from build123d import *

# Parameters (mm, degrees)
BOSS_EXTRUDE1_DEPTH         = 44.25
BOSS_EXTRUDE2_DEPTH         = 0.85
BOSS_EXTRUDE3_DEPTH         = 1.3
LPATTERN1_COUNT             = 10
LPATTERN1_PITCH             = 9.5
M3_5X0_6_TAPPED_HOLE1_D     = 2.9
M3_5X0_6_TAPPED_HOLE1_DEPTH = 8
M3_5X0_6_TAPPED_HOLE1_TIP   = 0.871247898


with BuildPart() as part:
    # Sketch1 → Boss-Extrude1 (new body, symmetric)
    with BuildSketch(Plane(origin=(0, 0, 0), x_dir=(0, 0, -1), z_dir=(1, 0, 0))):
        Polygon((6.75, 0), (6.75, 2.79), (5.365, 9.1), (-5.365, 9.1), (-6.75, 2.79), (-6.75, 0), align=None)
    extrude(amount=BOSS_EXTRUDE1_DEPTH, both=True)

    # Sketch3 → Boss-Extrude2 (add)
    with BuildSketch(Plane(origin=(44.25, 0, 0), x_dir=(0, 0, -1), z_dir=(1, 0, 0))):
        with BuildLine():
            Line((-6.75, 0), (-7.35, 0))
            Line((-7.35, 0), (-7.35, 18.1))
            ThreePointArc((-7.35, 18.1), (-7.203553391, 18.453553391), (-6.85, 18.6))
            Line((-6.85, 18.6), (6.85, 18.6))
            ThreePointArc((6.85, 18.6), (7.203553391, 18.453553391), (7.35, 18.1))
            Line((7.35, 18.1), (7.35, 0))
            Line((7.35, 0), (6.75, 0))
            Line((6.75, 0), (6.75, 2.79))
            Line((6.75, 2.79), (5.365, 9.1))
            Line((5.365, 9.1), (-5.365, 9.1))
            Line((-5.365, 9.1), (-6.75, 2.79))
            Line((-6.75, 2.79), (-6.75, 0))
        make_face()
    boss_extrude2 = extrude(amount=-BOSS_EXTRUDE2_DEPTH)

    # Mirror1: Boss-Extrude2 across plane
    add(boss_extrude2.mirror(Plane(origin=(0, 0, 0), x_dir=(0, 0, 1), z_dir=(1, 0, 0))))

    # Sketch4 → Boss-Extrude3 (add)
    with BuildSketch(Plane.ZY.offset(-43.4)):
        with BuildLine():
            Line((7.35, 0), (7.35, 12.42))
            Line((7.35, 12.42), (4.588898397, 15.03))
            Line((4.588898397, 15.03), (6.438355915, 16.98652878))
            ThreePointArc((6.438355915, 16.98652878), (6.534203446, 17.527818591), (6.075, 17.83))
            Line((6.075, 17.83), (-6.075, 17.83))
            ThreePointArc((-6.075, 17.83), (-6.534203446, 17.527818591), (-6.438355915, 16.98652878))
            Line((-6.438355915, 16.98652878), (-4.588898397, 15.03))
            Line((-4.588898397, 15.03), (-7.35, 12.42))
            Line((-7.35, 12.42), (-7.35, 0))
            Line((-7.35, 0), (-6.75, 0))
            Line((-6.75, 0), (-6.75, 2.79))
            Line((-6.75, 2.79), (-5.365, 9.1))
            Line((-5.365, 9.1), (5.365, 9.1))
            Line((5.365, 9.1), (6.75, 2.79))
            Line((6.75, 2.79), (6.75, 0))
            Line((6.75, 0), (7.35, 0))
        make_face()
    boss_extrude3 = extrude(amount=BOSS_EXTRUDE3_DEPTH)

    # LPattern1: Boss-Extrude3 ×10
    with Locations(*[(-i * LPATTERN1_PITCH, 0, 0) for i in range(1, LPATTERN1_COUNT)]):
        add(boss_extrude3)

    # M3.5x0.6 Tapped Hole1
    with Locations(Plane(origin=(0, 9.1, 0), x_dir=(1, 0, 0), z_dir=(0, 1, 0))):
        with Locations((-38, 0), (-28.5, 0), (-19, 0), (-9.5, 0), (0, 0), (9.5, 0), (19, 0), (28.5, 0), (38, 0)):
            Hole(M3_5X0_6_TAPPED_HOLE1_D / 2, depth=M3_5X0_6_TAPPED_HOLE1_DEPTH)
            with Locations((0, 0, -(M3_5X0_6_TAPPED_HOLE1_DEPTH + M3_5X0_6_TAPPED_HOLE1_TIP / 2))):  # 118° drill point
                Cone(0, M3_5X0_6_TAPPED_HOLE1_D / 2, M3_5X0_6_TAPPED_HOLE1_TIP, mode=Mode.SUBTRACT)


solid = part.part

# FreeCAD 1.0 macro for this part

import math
import FreeCAD as App
import Part
import Sketcher

V = App.Vector
Q = App.Units.Quantity

doc = App.newDocument("Part")
params = doc.addObject("Spreadsheet::Sheet", "Params")
for row, (alias, value) in enumerate([
    ("sketch1_height", "13.5 mm"),
    ("sketch1_width", "2.79 mm"),
    ("sketch1_height2", "10.73 mm"),
    ("pad1_length", "88.5 mm"),
    ("sketch2_radius", "0.5 mm"),
    ("sketch2_width", "18.1 mm"),
    ("sketch2_height", "0.6 mm"),
    ("sketch2_height2", "13.7 mm"),
    ("sketch2_width2", "2.79 mm"),
    ("pad2_length", "0.85 mm"),
    ("sketch3_radius", "0.5 mm"),
    ("sketch3_height", "0.6 mm"),
    ("sketch3_width", "12.42 mm"),
    ("sketch3_width2", "2.79 mm"),
    ("sketch3_height2", "12.15 mm"),
    ("pad3_length", "1.3 mm"),
    ("linearpattern_pitch", "9.5 mm"),
    ("sketch4_diameter", "2.9 mm"),
    ("hole_diameter", "2.9 mm"),
    ("hole_depth", "8 mm"),
], start=1):
    params.set(f"A{row}", alias)
    params.set(f"B{row}", "=" + value)
    params.setAlias(f"B{row}", alias)

body = doc.addObject("PartDesign::Body", "Body")

# Sketch on YZ plane
sketch1 = body.newObject("Sketcher::SketchObject", "Sketch")
sketch1.AttachmentSupport = (doc.getObject("YZ_Plane"), [""])
sketch1.MapMode = "FlatFace"
sketch1.addGeometry([
    Part.LineSegment(V(0, -6.8, 0), V(2.8, -6.8, 0)),  # 0
    Part.LineSegment(V(2.8, -6.8, 0), V(9.1, -5.4, 0)),  # 1
    Part.LineSegment(V(9.1, -5.4, 0), V(9.1, 5.4, 0)),  # 2
    Part.LineSegment(V(9.1, 5.4, 0), V(2.8, 6.8, 0)),  # 3
    Part.LineSegment(V(2.8, 6.8, 0), V(0, 6.8, 0)),  # 4
    Part.LineSegment(V(0, 6.8, 0), V(0, -6.8, 0)),  # 5
], False)
sketch1.addConstraint([
    Sketcher.Constraint("Coincident", 0, 2, 1, 1),
    Sketcher.Constraint("Coincident", 1, 2, 2, 1),
    Sketcher.Constraint("Coincident", 2, 2, 3, 1),
    Sketcher.Constraint("Coincident", 3, 2, 4, 1),
    Sketcher.Constraint("Coincident", 4, 2, 5, 1),
    Sketcher.Constraint("Coincident", 5, 2, 0, 1),
    Sketcher.Constraint("Horizontal", 0),
    Sketcher.Constraint("Vertical", 2),
    Sketcher.Constraint("Horizontal", 4),
    Sketcher.Constraint("Vertical", 5),
    Sketcher.Constraint("Symmetric", 4, 2, 5, 2, -1, 1),
    Sketcher.Constraint("Vertical", 0, 2, 3, 2),
    Sketcher.Constraint("Equal", 1, 3),
    Sketcher.Constraint("DistanceY", 5, 2, 5, 1, Q("13.5 mm")),
    Sketcher.Constraint("DistanceX", 0, 1, 0, 2, Q("2.79 mm")),
    Sketcher.Constraint("DistanceY", 2, 1, 2, 2, Q("10.73 mm")),
    Sketcher.Constraint("DistanceX", -1, 1, 1, 2, Q("9.1 mm")),
])
sketch1.setExpression("Constraints[13]", "Params.sketch1_height")
sketch1.setExpression("Constraints[14]", "Params.sketch1_width")
sketch1.setExpression("Constraints[15]", "Params.sketch1_height2")
pad1 = body.newObject("PartDesign::Pad", "Pad")
pad1.Profile = sketch1
pad1.setExpression("Length", "Params.pad1_length")
pad1.Midplane = True

# Sketch on YZ plane
sketch2 = body.newObject("Sketcher::SketchObject", "Sketch001")
sketch2.AttachmentSupport = (doc.getObject("YZ_Plane"), [""])
sketch2.MapMode = "FlatFace"
sketch2.AttachmentOffset = App.Placement(V(0, 0, 44.25), App.Rotation())
sketch2.addGeometry([
    Part.LineSegment(V(0, 7.35, 0), V(0, 6.75, 0)),  # 0
    Part.LineSegment(V(0, 6.75, 0), V(2.79, 6.75, 0)),  # 1
    Part.LineSegment(V(2.79, 6.75, 0), V(9.1, 5.37, 0)),  # 2
    Part.LineSegment(V(9.1, 5.37, 0), V(9.1, -5.37, 0)),  # 3
    Part.LineSegment(V(9.1, -5.37, 0), V(2.79, -6.75, 0)),  # 4
    Part.LineSegment(V(2.79, -6.75, 0), V(0, -6.75, 0)),  # 5
    Part.LineSegment(V(0, -6.75, 0), V(0, -7.35, 0)),  # 6
    Part.LineSegment(V(0, -7.35, 0), V(18.1, -7.35, 0)),  # 7
    Part.ArcOfCircle(Part.Circle(V(18.1, -6.85, 0), V(0, 0, 1), 0.5), math.radians(-90), math.radians(0)),  # 8
    Part.LineSegment(V(18.6, -6.85, 0), V(18.6, 6.85, 0)),  # 9
    Part.ArcOfCircle(Part.Circle(V(18.1, 6.85, 0), V(0, 0, 1), 0.5), math.radians(0), math.radians(90)),  # 10
    Part.LineSegment(V(18.1, 7.35, 0), V(0, 7.35, 0)),  # 11
], False)
sketch2.addConstraint([
    Sketcher.Constraint("Coincident", 0, 2, 1, 1),
    Sketcher.Constraint("Coincident", 1, 2, 2, 1),
    Sketcher.Constraint("Coincident", 2, 2, 3, 1),
    Sketcher.Constraint("Coincident", 3, 2, 4, 1),
    Sketcher.Constraint("Coincident", 4, 2, 5, 1),
    Sketcher.Constraint("Coincident", 5, 2, 6, 1),
    Sketcher.Constraint("Coincident", 6, 2, 7, 1),
    Sketcher.Constraint("Tangent", 7, 2, 8, 1),
    Sketcher.Constraint("Tangent", 8, 2, 9, 1),
    Sketcher.Constraint("Tangent", 9, 2, 10, 1),
    Sketcher.Constraint("Tangent", 10, 2, 11, 1),
    Sketcher.Constraint("Coincident", 11, 2, 0, 1),
    Sketcher.Constraint("Vertical", 0),
    Sketcher.Constraint("Horizontal", 1),
    Sketcher.Constraint("Vertical", 3),
    Sketcher.Constraint("Horizontal", 5),
    Sketcher.Constraint("Vertical", 6),
    Sketcher.Constraint("Horizontal", 7),
    Sketcher.Constraint("Vertical", 9),
    Sketcher.Constraint("Horizontal", 11),
    Sketcher.Constraint("Equal", 8, 10),
    Sketcher.Constraint("Symmetric", 0, 2, 5, 2, -1, 1),
    Sketcher.Constraint("Symmetric", 6, 2, 11, 2, -1),
    Sketcher.Constraint("Vertical", 1, 2, 4, 2),
    Sketcher.Constraint("Equal", 2, 4),
    Sketcher.Constraint("Radius", 8, Q("0.5 mm")),
    Sketcher.Constraint("DistanceX", 7, 1, 7, 2, Q("18.1 mm")),
    Sketcher.Constraint("DistanceY", 0, 2, 0, 1, Q("0.6 mm")),
    Sketcher.Constraint("DistanceY", 9, 1, 9, 2, Q("13.7 mm")),
    Sketcher.Constraint("DistanceX", 2, 2, 10, 3, Q("9 mm")),
    Sketcher.Constraint("DistanceX", 1, 1, 1, 2, Q("2.79 mm")),
    Sketcher.Constraint("DistanceY", 3, 2, 3, 1, Q("10.73 mm")),
])
sketch2.setExpression("Constraints[25]", "Params.sketch2_radius")
sketch2.setExpression("Constraints[26]", "Params.sketch2_width")
sketch2.setExpression("Constraints[27]", "Params.sketch2_height")
sketch2.setExpression("Constraints[28]", "Params.sketch2_height2")
sketch2.setExpression("Constraints[30]", "Params.sketch2_width2")
pad2 = body.newObject("PartDesign::Pad", "Pad001")
pad2.Profile = sketch2
pad2.setExpression("Length", "Params.pad2_length")
pad2.Reversed = True
doc.recompute()

mirrored = body.newObject("PartDesign::Mirrored", "Mirrored")
mirrored.Originals = [pad2]
mirrored.MirrorPlane = (doc.getObject("YZ_Plane"), [""])
body.Tip = mirrored

# Sketch on YZ plane
sketch3 = body.newObject("Sketcher::SketchObject", "Sketch002")
sketch3.AttachmentSupport = (doc.getObject("YZ_Plane"), [""])
sketch3.MapMode = "FlatFace"
sketch3.AttachmentOffset = App.Placement(V(0, 0, 43.4), App.Rotation())
sketch3.addGeometry([
    Part.LineSegment(V(0, 7.3, 0), V(12.4, 7.3, 0)),  # 0
    Part.LineSegment(V(12.4, 7.3, 0), V(15, 4.6, 0)),  # 1
    Part.LineSegment(V(15, 4.6, 0), V(17, 6.4, 0)),  # 2
    Part.ArcOfCircle(Part.Circle(V(17.3, 6.1, 0), V(0, 0, 1), 0.5), math.radians(0), math.radians(133)),  # 3
    Part.LineSegment(V(17.8, 6.1, 0), V(17.8, -6.1, 0)),  # 4
    Part.ArcOfCircle(Part.Circle(V(17.3, -6.1, 0), V(0, 0, 1), 0.5), math.radians(-133), math.radians(0)),  # 5
    Part.LineSegment(V(17, -6.4, 0), V(15, -4.6, 0)),  # 6
    Part.LineSegment(V(15, -4.6, 0), V(12.4, -7.3, 0)),  # 7
    Part.LineSegment(V(12.4, -7.3, 0), V(0, -7.3, 0)),  # 8
    Part.LineSegment(V(0, -7.3, 0), V(0, -6.8, 0)),  # 9
    Part.LineSegment(V(0, -6.8, 0), V(2.8, -6.8, 0)),  # 10
    Part.LineSegment(V(2.8, -6.8, 0), V(9.1, -5.4, 0)),  # 11
    Part.LineSegment(V(9.1, -5.4, 0), V(9.1, 5.4, 0)),  # 12
    Part.LineSegment(V(9.1, 5.4, 0), V(2.8, 6.8, 0)),  # 13
    Part.LineSegment(V(2.8, 6.8, 0), V(0, 6.8, 0)),  # 14
    Part.LineSegment(V(0, 6.8, 0), V(0, 7.3, 0)),  # 15
], False)
sketch3.addConstraint([
    Sketcher.Constraint("Coincident", 0, 2, 1, 1),
    Sketcher.Constraint("Coincident", 1, 2, 2, 1),
    Sketcher.Constraint("Tangent", 2, 2, 3, 2),
    Sketcher.Constraint("Tangent", 3, 1, 4, 1),
    Sketcher.Constraint("Tangent", 4, 2, 5, 2),
    Sketcher.Constraint("Tangent", 5, 1, 6, 1),
    Sketcher.Constraint("Coincident", 6, 2, 7, 1),
    Sketcher.Constraint("Coincident", 7, 2, 8, 1),
    Sketcher.Constraint("Coincident", 8, 2, 9, 1),
    Sketcher.Constraint("Coincident", 9, 2, 10, 1),
    Sketcher.Constraint("Coincident", 10, 2, 11, 1),
    Sketcher.Constraint("Coincident", 11, 2, 12, 1),
    Sketcher.Constraint("Coincident", 12, 2, 13, 1),
    Sketcher.Constraint("Coincident", 13, 2, 14, 1),
    Sketcher.Constraint("Coincident", 14, 2, 15, 1),
    Sketcher.Constraint("Coincident", 15, 2, 0, 1),
    Sketcher.Constraint("Horizontal", 0),
    Sketcher.Constraint("Vertical", 4),
    Sketcher.Constraint("Horizontal", 8),
    Sketcher.Constraint("Vertical", 9),
    Sketcher.Constraint("Horizontal", 10),
    Sketcher.Constraint("Vertical", 12),
    Sketcher.Constraint("Horizontal", 14),
    Sketcher.Constraint("Vertical", 15),
    Sketcher.Constraint("Equal", 3, 5),
    Sketcher.Constraint("Symmetric", 9, 2, 14, 2, -1, 1),
    Sketcher.Constraint("Symmetric", 2, 2, 5, 1, -1),
    Sketcher.Constraint("Symmetric", 0, 2, 7, 2, -1),
    Sketcher.Constraint("PointOnObject", 8, 2, -2),
    Sketcher.Constraint("Perpendicular", 1, 2),
    Sketcher.Constraint("Perpendicular", 6, 7),
    Sketcher.Constraint("Vertical", 10, 2, 13, 2),
    Sketcher.Constraint("Equal", 11, 13),
    Sketcher.Constraint("Radius", 3, Q("0.5 mm")),
    Sketcher.Constraint("DistanceY", 9, 1, 9, 2, Q("0.6 mm")),
    Sketcher.Constraint("DistanceX", 0, 1, 0, 2, Q("12.42 mm")),
    Sketcher.Constraint("DistanceX", 10, 1, 10, 2, Q("2.79 mm")),
    Sketcher.Constraint("DistanceY", 4, 2, 4, 1, Q("12.15 mm")),
    Sketcher.Constraint("DistanceY", 12, 1, 12, 2, Q("10.73 mm")),
    Sketcher.Constraint("DistanceX", -1, 1, 11, 2, Q("9.1 mm")),
    Sketcher.Constraint("DistanceX", 1, 2, 3, 3, Q("2.3 mm")),
    Sketcher.Constraint("DistanceY", 10, 2, 13, 2, Q("13.5 mm")),
    Sketcher.Constraint("DistanceX", -1, 1, 3, 3, Q("17.33 mm")),
])
sketch3.setExpression("Constraints[33]", "Params.sketch3_radius")
sketch3.setExpression("Constraints[34]", "Params.sketch3_height")
sketch3.setExpression("Constraints[35]", "Params.sketch3_width")
sketch3.setExpression("Constraints[36]", "Params.sketch3_width2")
sketch3.setExpression("Constraints[37]", "Params.sketch3_height2")
pad3 = body.newObject("PartDesign::Pad", "Pad002")
pad3.Profile = sketch3
pad3.setExpression("Length", "Params.pad3_length")
pad3.Reversed = True
doc.recompute()

linearpattern = body.newObject("PartDesign::LinearPattern", "LinearPattern")
linearpattern.Originals = [pad3]
linearpattern.Direction = (doc.getObject("X_Axis"), [""])
linearpattern.Mode = "offset"
linearpattern.setExpression("Offset", "Params.linearpattern_pitch")
linearpattern.Occurrences = 10
linearpattern.Reversed = True
body.Tip = linearpattern

# Sketch on XZ plane
sketch4 = body.newObject("Sketcher::SketchObject", "Sketch003")
sketch4.AttachmentSupport = (doc.getObject("XZ_Plane"), [""])
sketch4.MapMode = "FlatFace"
sketch4.AttachmentOffset = App.Placement(V(0, 0, -9.1), App.Rotation())
sketch4.addGeometry([
    Part.Circle(V(-38, 0, 0), V(0, 0, 1), 1.4),  # 0
    Part.Circle(V(-28.5, 0, 0), V(0, 0, 1), 1.4),  # 1
    Part.Circle(V(-19, 0, 0), V(0, 0, 1), 1.4),  # 2
    Part.Circle(V(-9.5, 0, 0), V(0, 0, 1), 1.4),  # 3
    Part.Circle(V(0, 0, 0), V(0, 0, 1), 1.4),  # 4
    Part.Circle(V(9.5, 0, 0), V(0, 0, 1), 1.4),  # 5
    Part.Circle(V(19, 0, 0), V(0, 0, 1), 1.4),  # 6
    Part.Circle(V(28.5, 0, 0), V(0, 0, 1), 1.4),  # 7
    Part.Circle(V(38, 0, 0), V(0, 0, 1), 1.4),  # 8
], False)
sketch4.addConstraint([
    Sketcher.Constraint("Coincident", 4, 3, -1, 1),
    Sketcher.Constraint("Equal", 0, 1),
    Sketcher.Constraint("Equal", 1, 2),
    Sketcher.Constraint("Equal", 2, 3),
    Sketcher.Constraint("Equal", 3, 4),
    Sketcher.Constraint("Equal", 4, 5),
    Sketcher.Constraint("Equal", 5, 6),
    Sketcher.Constraint("Equal", 6, 7),
    Sketcher.Constraint("Equal", 7, 8),
    Sketcher.Constraint("Symmetric", 3, 3, 5, 3, -1, 1),
    Sketcher.Constraint("Symmetric", 2, 3, 6, 3, -1, 1),
    Sketcher.Constraint("Symmetric", 1, 3, 7, 3, -1, 1),
    Sketcher.Constraint("Symmetric", 0, 3, 8, 3, -1, 1),
    Sketcher.Constraint("PointOnObject", 0, 3, -1),
    Sketcher.Constraint("PointOnObject", 1, 3, -1),
    Sketcher.Constraint("PointOnObject", 2, 3, -1),
    Sketcher.Constraint("PointOnObject", 3, 3, -1),
    Sketcher.Constraint("Diameter", 0, Q("2.9 mm")),
    Sketcher.Constraint("DistanceX", 0, 3, -1, 1, Q("38 mm")),
    Sketcher.Constraint("DistanceX", 2, 3, -1, 1, Q("19 mm")),
    Sketcher.Constraint("DistanceX", 1, 3, 3, 3, Q("19 mm")),
    Sketcher.Constraint("DistanceX", 3, 3, 5, 3, Q("19 mm")),
])
sketch4.setExpression("Constraints[17]", "Params.sketch4_diameter")
doc.recompute()
hole = body.newObject("PartDesign::Hole", "Hole")
hole.Profile = sketch4
hole.ThreadType = "None"
hole.setExpression("Diameter", "Params.hole_diameter")
hole.DepthType = "Dimension"
hole.setExpression("Depth", "Params.hole_depth")
hole.DrillPoint = "Angled"
hole.DrillPointAngle = 118
hole.Reversed = True

doc.recompute()
